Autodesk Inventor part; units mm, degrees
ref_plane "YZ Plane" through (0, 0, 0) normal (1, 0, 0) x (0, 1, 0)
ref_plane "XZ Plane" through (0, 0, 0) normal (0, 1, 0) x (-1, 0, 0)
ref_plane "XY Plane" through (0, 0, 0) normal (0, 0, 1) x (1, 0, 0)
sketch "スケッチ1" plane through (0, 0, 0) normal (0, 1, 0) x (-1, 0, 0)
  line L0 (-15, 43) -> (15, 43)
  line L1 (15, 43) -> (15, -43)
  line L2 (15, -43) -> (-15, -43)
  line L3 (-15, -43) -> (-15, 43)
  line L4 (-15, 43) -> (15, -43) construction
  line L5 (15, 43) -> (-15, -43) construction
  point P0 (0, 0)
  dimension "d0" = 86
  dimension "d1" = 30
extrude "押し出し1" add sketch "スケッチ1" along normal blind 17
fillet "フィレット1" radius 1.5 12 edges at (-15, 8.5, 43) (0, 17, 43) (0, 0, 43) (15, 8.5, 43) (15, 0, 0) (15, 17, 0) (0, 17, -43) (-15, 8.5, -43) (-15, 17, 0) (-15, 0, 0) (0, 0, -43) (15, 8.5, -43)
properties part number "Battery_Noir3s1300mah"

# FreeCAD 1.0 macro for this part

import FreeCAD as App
import Part
import Sketcher
from FreeCAD import Vector
Q = App.Units.Quantity

doc = App.newDocument("Part")
body = doc.addObject("PartDesign::Body", "Body")

# Sketch on XZ plane
sketch1 = doc.addObject("Sketcher::SketchObject", "Sketch")
body.addObject(sketch1)
sketch1.AttachmentSupport = (doc.XZ_Plane, [""])
sketch1.MapMode = "FlatFace"
sketch1.addGeometry(Part.LineSegment(Vector(-15, 43, 0), Vector(15, 43, 0)), False)
sketch1.addGeometry(Part.LineSegment(Vector(15, 43, 0), Vector(15, -43, 0)), False)
sketch1.addGeometry(Part.LineSegment(Vector(15, -43, 0), Vector(-15, -43, 0)), False)
sketch1.addGeometry(Part.LineSegment(Vector(-15, -43, 0), Vector(-15, 43, 0)), False)
sketch1.addConstraint(Sketcher.Constraint("Coincident", 0, 2, 1, 1))
sketch1.addConstraint(Sketcher.Constraint("Coincident", 1, 2, 2, 1))
sketch1.addConstraint(Sketcher.Constraint("Coincident", 2, 2, 3, 1))
sketch1.addConstraint(Sketcher.Constraint("Coincident", 3, 2, 0, 1))
sketch1.addConstraint(Sketcher.Constraint("Horizontal", 0))
sketch1.addConstraint(Sketcher.Constraint("Vertical", 1))
sketch1.addConstraint(Sketcher.Constraint("Horizontal", 2))
sketch1.addConstraint(Sketcher.Constraint("Vertical", 3))
sketch1.addConstraint(Sketcher.Constraint("Symmetric", 0, 2, 2, 2, -1, 1))
sketch1.addConstraint(Sketcher.Constraint("DistanceX", 0, 1, 0, 2, Q("30 mm")))
sketch1.addConstraint(Sketcher.Constraint("DistanceY", 1, 2, 1, 1, Q("86 mm")))
pad1 = doc.addObject("PartDesign::Pad", "Pad")
body.addObject(pad1)
pad1.Profile = sketch1
pad1.Length = 17
pad1.Reversed = True
doc.recompute()

fillet = doc.addObject("PartDesign::Fillet", "Fillet")
body.addObject(fillet)
fillet.Base = (pad1, ["Edge1"])
fillet.UseAllEdges = True
fillet.Radius = 1.5

doc.recompute()
